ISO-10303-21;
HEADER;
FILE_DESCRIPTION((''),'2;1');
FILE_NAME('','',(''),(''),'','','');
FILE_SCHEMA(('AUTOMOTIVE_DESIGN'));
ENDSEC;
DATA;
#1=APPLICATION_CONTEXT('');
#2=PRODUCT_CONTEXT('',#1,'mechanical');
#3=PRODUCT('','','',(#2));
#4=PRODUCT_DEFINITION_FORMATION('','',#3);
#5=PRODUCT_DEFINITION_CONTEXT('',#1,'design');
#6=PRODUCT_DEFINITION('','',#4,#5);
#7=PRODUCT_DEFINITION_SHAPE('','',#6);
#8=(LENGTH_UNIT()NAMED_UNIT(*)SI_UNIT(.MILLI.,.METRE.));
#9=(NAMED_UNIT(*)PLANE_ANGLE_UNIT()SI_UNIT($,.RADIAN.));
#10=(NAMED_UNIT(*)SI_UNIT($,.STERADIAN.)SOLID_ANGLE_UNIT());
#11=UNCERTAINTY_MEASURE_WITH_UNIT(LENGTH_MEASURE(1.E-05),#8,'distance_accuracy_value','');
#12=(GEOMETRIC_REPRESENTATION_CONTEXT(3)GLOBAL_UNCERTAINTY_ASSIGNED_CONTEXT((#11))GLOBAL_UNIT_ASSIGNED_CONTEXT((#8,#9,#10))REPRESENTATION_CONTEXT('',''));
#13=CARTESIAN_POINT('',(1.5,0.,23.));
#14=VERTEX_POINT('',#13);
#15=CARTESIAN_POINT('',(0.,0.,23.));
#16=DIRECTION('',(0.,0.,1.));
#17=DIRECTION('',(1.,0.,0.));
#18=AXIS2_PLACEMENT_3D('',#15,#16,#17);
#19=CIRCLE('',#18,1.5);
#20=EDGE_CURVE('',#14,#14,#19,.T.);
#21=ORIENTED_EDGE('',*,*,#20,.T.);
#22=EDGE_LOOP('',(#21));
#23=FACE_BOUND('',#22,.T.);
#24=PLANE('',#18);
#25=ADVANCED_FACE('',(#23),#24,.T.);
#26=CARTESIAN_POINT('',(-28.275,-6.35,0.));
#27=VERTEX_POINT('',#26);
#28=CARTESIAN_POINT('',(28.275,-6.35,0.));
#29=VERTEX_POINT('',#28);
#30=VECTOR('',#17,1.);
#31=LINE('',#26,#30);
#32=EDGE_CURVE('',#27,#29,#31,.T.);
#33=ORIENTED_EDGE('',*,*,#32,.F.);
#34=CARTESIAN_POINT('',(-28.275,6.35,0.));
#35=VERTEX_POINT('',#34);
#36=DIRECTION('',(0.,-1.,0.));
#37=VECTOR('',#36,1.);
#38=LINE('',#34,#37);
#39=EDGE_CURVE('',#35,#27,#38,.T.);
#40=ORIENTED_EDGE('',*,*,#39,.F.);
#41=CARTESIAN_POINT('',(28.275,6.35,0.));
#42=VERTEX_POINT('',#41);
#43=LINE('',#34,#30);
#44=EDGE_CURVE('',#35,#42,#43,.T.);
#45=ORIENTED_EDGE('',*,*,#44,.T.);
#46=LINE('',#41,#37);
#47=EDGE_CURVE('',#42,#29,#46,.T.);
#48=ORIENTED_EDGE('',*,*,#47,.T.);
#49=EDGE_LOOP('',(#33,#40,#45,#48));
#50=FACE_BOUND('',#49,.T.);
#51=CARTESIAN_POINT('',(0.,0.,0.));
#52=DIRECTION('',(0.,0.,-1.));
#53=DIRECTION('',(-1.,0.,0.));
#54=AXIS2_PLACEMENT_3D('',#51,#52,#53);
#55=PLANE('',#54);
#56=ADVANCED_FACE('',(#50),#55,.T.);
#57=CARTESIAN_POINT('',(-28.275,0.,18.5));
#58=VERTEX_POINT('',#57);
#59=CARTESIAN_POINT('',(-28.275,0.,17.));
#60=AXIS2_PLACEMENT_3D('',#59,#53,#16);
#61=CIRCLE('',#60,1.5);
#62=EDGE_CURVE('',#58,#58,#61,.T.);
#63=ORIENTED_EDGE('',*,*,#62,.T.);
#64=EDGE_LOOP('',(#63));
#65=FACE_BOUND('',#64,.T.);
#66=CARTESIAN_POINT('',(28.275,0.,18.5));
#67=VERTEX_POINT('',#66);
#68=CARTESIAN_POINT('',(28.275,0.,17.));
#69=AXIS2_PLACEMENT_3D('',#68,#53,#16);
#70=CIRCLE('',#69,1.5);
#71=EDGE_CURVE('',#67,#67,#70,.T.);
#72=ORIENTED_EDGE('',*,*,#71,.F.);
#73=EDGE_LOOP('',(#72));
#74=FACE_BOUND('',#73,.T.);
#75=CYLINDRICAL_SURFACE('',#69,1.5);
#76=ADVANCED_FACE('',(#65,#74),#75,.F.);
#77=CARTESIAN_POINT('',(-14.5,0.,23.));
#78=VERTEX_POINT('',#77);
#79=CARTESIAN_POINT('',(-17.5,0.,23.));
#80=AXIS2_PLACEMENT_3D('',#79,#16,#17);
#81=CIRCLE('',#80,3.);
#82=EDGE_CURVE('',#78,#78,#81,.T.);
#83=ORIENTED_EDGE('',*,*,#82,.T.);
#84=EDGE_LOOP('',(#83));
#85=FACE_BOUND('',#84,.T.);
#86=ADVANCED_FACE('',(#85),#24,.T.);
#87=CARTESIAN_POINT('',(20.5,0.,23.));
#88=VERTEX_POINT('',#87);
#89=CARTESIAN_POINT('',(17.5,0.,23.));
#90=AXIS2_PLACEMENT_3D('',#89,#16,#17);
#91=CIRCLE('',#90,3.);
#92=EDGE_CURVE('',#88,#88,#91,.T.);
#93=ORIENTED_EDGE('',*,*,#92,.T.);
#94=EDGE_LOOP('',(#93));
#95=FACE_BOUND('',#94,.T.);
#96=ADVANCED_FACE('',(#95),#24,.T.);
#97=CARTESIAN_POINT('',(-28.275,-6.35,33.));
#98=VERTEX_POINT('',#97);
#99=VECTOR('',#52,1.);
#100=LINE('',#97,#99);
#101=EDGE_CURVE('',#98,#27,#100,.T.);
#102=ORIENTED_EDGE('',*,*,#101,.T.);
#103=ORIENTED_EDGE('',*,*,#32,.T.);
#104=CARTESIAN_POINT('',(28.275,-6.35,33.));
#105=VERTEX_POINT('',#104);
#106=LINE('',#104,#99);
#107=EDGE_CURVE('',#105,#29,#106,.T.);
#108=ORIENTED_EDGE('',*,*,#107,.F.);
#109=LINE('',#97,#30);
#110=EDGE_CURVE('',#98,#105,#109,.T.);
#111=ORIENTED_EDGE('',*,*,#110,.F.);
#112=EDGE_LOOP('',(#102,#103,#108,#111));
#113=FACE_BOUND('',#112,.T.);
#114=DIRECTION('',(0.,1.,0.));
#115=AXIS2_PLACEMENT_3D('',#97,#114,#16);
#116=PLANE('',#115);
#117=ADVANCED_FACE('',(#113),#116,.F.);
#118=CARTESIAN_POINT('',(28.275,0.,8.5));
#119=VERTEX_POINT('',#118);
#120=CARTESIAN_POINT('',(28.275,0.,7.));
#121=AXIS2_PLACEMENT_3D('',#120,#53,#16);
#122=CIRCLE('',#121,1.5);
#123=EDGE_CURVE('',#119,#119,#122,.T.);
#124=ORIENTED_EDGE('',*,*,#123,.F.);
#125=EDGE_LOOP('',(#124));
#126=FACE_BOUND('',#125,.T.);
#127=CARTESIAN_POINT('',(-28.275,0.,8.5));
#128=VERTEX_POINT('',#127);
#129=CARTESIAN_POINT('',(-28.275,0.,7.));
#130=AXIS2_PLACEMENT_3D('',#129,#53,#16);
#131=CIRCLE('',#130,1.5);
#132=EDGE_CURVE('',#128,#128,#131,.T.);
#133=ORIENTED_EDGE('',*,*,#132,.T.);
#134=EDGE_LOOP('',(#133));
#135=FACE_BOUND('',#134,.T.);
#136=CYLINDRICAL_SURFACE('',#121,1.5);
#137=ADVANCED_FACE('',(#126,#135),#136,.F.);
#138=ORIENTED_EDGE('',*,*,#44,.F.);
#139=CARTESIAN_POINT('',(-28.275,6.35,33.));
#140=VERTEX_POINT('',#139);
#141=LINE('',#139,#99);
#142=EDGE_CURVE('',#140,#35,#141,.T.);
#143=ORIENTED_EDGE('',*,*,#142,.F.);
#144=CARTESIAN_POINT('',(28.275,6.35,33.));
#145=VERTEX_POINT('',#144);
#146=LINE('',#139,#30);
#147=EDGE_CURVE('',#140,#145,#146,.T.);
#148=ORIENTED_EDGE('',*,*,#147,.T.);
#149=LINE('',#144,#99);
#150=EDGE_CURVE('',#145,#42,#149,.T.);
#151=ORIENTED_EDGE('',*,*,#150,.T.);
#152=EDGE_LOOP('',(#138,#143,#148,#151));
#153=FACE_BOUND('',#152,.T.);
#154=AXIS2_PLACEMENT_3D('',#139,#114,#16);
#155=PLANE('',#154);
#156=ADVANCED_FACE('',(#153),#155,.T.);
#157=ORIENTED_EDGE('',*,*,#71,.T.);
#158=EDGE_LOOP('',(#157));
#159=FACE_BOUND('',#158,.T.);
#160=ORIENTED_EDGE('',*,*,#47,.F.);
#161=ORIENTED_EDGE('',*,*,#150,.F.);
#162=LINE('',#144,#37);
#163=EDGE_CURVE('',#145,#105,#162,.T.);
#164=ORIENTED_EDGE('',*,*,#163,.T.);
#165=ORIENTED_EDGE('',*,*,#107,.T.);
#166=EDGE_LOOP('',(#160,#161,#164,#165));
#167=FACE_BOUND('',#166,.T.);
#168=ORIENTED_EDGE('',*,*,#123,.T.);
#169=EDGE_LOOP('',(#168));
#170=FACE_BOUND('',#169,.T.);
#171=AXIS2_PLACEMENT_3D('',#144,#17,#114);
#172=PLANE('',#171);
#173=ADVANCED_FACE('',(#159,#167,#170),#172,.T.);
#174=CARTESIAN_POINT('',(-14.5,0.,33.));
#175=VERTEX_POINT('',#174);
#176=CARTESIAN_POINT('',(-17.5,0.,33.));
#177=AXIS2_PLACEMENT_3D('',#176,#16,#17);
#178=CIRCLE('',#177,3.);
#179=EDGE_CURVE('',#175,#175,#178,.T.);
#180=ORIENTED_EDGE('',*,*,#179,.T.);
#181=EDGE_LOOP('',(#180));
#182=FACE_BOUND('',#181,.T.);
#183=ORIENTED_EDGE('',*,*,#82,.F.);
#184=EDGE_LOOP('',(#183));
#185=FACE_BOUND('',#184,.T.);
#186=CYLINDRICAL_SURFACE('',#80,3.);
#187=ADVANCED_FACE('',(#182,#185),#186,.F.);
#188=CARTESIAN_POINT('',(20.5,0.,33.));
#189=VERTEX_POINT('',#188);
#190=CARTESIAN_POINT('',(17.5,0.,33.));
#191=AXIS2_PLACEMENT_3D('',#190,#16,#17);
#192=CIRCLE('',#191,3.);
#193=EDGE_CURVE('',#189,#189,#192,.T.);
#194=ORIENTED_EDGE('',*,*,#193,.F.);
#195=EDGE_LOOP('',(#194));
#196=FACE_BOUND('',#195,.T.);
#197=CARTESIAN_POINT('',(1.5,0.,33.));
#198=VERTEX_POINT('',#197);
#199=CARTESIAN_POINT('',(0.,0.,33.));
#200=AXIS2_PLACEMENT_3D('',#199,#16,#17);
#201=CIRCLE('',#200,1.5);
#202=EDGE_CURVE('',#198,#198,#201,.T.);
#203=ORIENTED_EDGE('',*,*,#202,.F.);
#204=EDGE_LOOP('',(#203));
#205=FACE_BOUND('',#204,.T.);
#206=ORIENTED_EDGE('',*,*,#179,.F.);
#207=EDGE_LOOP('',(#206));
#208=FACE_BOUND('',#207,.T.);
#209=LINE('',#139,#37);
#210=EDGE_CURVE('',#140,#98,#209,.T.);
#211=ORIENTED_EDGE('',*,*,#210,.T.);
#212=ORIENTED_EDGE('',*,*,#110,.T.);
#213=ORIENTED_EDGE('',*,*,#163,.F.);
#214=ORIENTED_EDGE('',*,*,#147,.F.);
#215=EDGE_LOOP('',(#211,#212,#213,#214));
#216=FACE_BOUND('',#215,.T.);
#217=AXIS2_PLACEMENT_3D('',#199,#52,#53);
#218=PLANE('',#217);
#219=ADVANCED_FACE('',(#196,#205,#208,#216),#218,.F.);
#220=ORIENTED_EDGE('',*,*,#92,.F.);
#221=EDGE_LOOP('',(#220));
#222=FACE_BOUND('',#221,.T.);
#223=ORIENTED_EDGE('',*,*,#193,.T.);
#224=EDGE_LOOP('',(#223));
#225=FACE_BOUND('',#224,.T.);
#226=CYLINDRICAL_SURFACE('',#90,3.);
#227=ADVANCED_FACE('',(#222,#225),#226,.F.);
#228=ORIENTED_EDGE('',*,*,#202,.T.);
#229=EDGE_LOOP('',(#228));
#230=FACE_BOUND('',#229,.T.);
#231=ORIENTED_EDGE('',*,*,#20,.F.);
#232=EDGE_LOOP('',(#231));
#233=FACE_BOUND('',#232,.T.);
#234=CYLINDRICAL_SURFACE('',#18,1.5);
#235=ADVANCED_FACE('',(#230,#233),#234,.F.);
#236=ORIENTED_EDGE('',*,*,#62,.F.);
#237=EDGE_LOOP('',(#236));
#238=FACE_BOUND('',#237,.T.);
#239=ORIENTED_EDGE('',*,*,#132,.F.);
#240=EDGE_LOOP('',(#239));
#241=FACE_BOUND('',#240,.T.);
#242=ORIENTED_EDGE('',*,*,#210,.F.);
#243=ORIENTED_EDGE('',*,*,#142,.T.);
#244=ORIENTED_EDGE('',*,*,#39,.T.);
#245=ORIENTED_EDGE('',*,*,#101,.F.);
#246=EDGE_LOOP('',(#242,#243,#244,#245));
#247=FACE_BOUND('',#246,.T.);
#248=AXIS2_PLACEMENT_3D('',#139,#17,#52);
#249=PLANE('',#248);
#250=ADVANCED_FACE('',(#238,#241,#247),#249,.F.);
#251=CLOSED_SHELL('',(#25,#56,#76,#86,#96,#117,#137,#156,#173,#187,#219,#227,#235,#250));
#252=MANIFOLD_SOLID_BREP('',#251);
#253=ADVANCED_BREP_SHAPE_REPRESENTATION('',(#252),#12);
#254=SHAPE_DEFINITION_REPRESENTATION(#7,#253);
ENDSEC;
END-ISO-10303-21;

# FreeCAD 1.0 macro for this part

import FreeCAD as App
import Part
import Sketcher
Q = App.Units.Quantity

doc = App.newDocument("Part")
body = doc.addObject("PartDesign::Body", "Body")

# Sketch on XY plane
sketch1 = body.newObject("Sketcher::SketchObject", "Sketch")
sketch1.AttachmentSupport = (doc.getObject("XY_Plane"), [""])
sketch1.MapMode = "FlatFace"
sketch1.addGeometry([
    Part.LineSegment(App.Vector(-28, 6, 0), App.Vector(-28, -6, 0)),
    Part.LineSegment(App.Vector(-28, -6, 0), App.Vector(28, -6, 0)),
    Part.LineSegment(App.Vector(28, -6, 0), App.Vector(28, 6, 0)),
    Part.LineSegment(App.Vector(28, 6, 0), App.Vector(-28, 6, 0)),
], False)
sketch1.addConstraint([
    Sketcher.Constraint("Coincident", 0, 2, 1, 1),
    Sketcher.Constraint("Coincident", 1, 2, 2, 1),
    Sketcher.Constraint("Coincident", 2, 2, 3, 1),
    Sketcher.Constraint("Coincident", 3, 2, 0, 1),
    Sketcher.Constraint("Vertical", 0),
    Sketcher.Constraint("Horizontal", 1),
    Sketcher.Constraint("Vertical", 2),
    Sketcher.Constraint("Horizontal", 3),
    Sketcher.Constraint("Symmetric", 0, 2, 2, 2, -1, 1),
    Sketcher.Constraint("DistanceY", 0, 2, 0, 1, Q("12.7 mm")),
    Sketcher.Constraint("DistanceX", 1, 1, 1, 2, Q("56.55 mm")),
])
pad1 = body.newObject("PartDesign::Pad", "Pad")
pad1.Profile = sketch1
pad1.Length = 33

# Sketch on XY plane
sketch2 = body.newObject("Sketcher::SketchObject", "Sketch001")
sketch2.AttachmentSupport = (doc.getObject("XY_Plane"), [""])
sketch2.MapMode = "FlatFace"
sketch2.AttachmentOffset = App.Placement(App.Vector(0, 0, 33), App.Rotation())
sketch2.addGeometry([
    Part.Circle(App.Vector(-17.5, 0, 0), App.Vector(0, 0, 1), 3),
    Part.Circle(App.Vector(17.5, 0, 0), App.Vector(0, 0, 1), 3),
    Part.Circle(App.Vector(0, 0, 0), App.Vector(0, 0, 1), 1.5),
], False)
sketch2.addConstraint([
    Sketcher.Constraint("Coincident", 2, 3, -1, 1),
    Sketcher.Constraint("Equal", 0, 1),
    Sketcher.Constraint("Symmetric", 0, 3, 1, 3, -1, 1),
    Sketcher.Constraint("PointOnObject", 0, 3, -1),
    Sketcher.Constraint("Diameter", 0, Q("6 mm")),
    Sketcher.Constraint("Diameter", 2, Q("3 mm")),
    Sketcher.Constraint("DistanceX", 0, 3, 1, 3, Q("35 mm")),
])
pocket1 = body.newObject("PartDesign::Pocket", "Pocket")
pocket1.Profile = sketch2
pocket1.Length = 10

# Sketch on YZ plane
sketch3 = body.newObject("Sketcher::SketchObject", "Sketch002")
sketch3.AttachmentSupport = (doc.getObject("YZ_Plane"), [""])
sketch3.MapMode = "FlatFace"
sketch3.AttachmentOffset = App.Placement(App.Vector(0, 0, -28.275), App.Rotation())
sketch3.addGeometry([
    Part.Circle(App.Vector(0, 7, 0), App.Vector(0, 0, 1), 1.5),
    Part.Circle(App.Vector(0, 17, 0), App.Vector(0, 0, 1), 1.5),
], False)
sketch3.addConstraint([
    Sketcher.Constraint("Equal", 0, 1),
    Sketcher.Constraint("PointOnObject", 0, 3, -2),
    Sketcher.Constraint("PointOnObject", 1, 3, -2),
    Sketcher.Constraint("Diameter", 0, Q("3 mm")),
    Sketcher.Constraint("DistanceY", -1, 1, 0, 3, Q("7 mm")),
    Sketcher.Constraint("DistanceY", -1, 1, 1, 3, Q("17 mm")),
])
pocket2 = body.newObject("PartDesign::Pocket", "Pocket001")
pocket2.Profile = sketch3
pocket2.Type = "ThroughAll"
pocket2.Reversed = True

doc.recompute()
